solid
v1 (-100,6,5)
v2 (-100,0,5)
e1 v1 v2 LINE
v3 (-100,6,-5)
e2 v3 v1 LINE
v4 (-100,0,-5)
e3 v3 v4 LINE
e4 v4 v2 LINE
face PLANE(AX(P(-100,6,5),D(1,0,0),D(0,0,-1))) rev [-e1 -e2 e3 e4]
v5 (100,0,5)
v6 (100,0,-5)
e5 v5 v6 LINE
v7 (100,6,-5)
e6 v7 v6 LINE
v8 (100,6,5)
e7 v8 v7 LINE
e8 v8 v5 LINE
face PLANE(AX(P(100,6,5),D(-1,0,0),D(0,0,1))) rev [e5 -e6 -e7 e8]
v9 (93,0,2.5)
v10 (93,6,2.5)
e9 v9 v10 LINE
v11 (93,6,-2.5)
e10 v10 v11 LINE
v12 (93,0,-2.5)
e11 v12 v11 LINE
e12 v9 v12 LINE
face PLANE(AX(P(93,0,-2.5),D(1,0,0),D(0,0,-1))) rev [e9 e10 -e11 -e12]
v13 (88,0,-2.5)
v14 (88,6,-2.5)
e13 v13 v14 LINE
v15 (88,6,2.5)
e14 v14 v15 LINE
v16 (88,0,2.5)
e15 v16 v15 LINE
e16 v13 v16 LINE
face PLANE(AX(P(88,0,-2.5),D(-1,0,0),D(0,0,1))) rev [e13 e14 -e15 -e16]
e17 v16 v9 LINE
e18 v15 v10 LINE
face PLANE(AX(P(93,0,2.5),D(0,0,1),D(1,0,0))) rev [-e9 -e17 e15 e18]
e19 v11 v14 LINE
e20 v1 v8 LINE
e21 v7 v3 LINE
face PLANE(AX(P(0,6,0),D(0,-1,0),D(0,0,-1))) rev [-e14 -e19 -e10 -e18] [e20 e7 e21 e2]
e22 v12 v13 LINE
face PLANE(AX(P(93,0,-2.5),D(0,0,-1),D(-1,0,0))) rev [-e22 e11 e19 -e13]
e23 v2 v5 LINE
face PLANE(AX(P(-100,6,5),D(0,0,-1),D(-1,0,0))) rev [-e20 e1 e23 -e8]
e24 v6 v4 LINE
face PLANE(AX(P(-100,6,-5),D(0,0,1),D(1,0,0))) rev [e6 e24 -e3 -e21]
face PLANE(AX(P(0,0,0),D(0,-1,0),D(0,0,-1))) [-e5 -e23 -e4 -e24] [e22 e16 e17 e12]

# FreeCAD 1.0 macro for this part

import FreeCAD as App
import Part
import Sketcher
from FreeCAD import Vector
Q = App.Units.Quantity


def add_polygon(sketch, points):
    """Adds a closed chain of lines whose ends are joined by coincident constraints."""
    first, n = sketch.GeometryCount, len(points)
    for a, b in zip(points, points[1:] + points[:1]):
        sketch.addGeometry(Part.LineSegment(App.Vector(*a, 0), App.Vector(*b, 0)), False)
    for i in range(n):
        sketch.addConstraint(Sketcher.Constraint("Coincident", first + i, 2, first + (i + 1) % n, 1))

doc = App.newDocument("Part")
body = doc.addObject("PartDesign::Body", "Body")

# Sketch on XZ plane
sketch1 = body.newObject("Sketcher::SketchObject", "Sketch")
sketch1.AttachmentSupport = (doc.getObject("XZ_Plane"), [""])
sketch1.MapMode = "FlatFace"
add_polygon(sketch1, [(-100, -5), (-100, 5), (100, 5), (100, -5)])  # lines 0-3
sketch1.addConstraint(Sketcher.Constraint("Vertical", 0))
sketch1.addConstraint(Sketcher.Constraint("Horizontal", 1))
sketch1.addConstraint(Sketcher.Constraint("Vertical", 2))
sketch1.addConstraint(Sketcher.Constraint("Horizontal", 3))
sketch1.addConstraint(Sketcher.Constraint("Symmetric", 0, 2, 2, 2, -1, 1))
sketch1.addConstraint(Sketcher.Constraint("DistanceX", 1, 1, 1, 2, Q("200 mm")))
sketch1.addConstraint(Sketcher.Constraint("DistanceY", 0, 1, 0, 2, Q("10 mm")))
pad1 = body.newObject("PartDesign::Pad", "Pad")
pad1.Profile = sketch1
pad1.Length = 6
pad1.Reversed = True

# Sketch on XZ plane
sketch2 = body.newObject("Sketcher::SketchObject", "Sketch001")
sketch2.AttachmentSupport = (doc.getObject("XZ_Plane"), [""])
sketch2.MapMode = "FlatFace"
sketch2.AttachmentOffset = App.Placement(Vector(0, 0, -6), App.Rotation())
add_polygon(sketch2, [(88, -2), (88, 2), (93, 2), (93, -2)])  # lines 0-3
sketch2.addConstraint(Sketcher.Constraint("Vertical", 0))
sketch2.addConstraint(Sketcher.Constraint("Horizontal", 1))
sketch2.addConstraint(Sketcher.Constraint("Vertical", 2))
sketch2.addConstraint(Sketcher.Constraint("Horizontal", 3))
sketch2.addConstraint(Sketcher.Constraint("Equal", 3, 0))
sketch2.addConstraint(Sketcher.Constraint("DistanceX", 1, 1, 1, 2, Q("5 mm")))
sketch2.addConstraint(Sketcher.Constraint("DistanceX", -1, 1, 0, 2, Q("88 mm")))
sketch2.addConstraint(Sketcher.Constraint("DistanceY", -1, 1, 0, 2, Q("2.5 mm")))
pocket1 = body.newObject("PartDesign::Pocket", "Pocket")
pocket1.Profile = sketch2
pocket1.Type = "ThroughAll"
pocket1.Reversed = True

doc.recompute()
